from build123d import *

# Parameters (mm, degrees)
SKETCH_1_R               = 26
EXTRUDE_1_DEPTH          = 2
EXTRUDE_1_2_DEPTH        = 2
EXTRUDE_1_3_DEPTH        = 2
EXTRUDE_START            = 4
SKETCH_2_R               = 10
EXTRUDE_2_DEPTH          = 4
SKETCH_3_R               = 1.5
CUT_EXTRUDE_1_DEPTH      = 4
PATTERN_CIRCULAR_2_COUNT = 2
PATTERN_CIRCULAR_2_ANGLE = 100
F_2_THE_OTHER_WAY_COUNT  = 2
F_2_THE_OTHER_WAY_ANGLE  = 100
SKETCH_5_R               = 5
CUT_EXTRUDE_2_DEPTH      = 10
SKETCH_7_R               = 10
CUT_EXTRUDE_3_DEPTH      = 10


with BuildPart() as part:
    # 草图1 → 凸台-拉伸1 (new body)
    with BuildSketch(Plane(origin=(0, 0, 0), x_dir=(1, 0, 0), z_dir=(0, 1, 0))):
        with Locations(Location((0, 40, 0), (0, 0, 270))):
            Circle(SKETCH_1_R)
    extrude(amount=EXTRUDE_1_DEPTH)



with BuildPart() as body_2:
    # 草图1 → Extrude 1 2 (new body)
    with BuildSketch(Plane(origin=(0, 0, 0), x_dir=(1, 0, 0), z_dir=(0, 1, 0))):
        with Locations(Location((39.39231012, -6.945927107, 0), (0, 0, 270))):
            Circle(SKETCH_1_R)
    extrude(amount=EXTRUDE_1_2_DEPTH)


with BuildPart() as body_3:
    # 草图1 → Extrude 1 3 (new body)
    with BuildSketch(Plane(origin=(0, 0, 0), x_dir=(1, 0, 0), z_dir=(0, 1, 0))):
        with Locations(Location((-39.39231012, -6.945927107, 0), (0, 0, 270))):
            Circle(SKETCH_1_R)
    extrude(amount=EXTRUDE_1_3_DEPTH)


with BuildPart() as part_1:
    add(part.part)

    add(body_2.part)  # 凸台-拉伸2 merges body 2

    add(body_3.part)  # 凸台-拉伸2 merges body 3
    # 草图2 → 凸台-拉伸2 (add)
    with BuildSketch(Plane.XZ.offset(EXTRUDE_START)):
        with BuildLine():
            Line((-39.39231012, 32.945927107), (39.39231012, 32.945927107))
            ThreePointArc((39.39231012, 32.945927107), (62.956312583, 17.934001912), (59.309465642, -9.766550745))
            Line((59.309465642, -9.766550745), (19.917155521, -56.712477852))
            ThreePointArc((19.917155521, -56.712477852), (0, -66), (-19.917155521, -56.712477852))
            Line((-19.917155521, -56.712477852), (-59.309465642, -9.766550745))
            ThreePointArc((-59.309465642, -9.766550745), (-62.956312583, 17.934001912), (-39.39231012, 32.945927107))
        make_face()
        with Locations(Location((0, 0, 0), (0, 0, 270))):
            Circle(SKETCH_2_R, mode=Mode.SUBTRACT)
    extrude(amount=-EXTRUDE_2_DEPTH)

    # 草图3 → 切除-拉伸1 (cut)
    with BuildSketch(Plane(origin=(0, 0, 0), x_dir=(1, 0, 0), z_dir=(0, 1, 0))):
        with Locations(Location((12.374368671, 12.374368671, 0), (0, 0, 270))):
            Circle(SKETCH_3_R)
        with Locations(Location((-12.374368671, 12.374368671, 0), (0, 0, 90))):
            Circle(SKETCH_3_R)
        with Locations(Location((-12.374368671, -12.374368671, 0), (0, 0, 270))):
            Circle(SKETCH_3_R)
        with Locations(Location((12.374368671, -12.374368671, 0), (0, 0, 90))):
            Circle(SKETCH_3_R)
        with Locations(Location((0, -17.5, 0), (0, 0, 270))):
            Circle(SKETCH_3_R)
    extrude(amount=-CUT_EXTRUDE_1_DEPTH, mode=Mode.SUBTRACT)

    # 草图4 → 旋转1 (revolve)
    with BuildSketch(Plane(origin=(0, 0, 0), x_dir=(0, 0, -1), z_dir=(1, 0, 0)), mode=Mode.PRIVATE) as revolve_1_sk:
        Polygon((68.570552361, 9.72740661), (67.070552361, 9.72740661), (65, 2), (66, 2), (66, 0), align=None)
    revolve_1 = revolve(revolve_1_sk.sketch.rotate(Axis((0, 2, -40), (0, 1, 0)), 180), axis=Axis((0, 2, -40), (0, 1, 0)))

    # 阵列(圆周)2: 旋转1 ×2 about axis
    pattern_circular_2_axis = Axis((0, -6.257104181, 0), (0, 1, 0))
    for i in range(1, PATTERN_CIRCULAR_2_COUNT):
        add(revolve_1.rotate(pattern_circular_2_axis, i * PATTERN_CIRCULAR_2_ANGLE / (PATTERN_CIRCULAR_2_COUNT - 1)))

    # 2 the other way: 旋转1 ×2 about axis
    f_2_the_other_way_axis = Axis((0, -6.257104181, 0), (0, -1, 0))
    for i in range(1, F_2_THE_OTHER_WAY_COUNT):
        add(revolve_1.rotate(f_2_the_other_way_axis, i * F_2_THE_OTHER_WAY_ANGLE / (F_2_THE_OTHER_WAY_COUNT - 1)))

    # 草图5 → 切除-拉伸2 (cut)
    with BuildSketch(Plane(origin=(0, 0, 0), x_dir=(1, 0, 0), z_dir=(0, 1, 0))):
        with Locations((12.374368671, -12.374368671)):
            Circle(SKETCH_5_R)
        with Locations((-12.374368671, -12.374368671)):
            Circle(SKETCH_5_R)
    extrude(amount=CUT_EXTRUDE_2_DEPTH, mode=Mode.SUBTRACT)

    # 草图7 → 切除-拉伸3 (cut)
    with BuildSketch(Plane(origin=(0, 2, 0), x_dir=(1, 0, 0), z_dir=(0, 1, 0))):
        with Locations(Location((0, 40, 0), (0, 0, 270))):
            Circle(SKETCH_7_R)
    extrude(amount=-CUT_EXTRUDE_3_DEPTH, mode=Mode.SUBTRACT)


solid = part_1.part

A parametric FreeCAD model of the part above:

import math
import FreeCAD as App
import Part
import Sketcher
from FreeCAD import Vector
Q = App.Units.Quantity


def add_polygon(sketch, points):
    """Adds a closed chain of lines whose ends are joined by coincident constraints."""
    first, n = sketch.GeometryCount, len(points)
    for a, b in zip(points, points[1:] + points[:1]):
        sketch.addGeometry(Part.LineSegment(App.Vector(*a, 0), App.Vector(*b, 0)), False)
    for i in range(n):
        sketch.addConstraint(Sketcher.Constraint("Coincident", first + i, 2, first + (i + 1) % n, 1))

doc = App.newDocument("Part")
body = doc.addObject("PartDesign::Body", "Body")

sketch1 = body.newObject("Sketcher::SketchObject", "Sketch")
sketch1.AttachmentSupport = (doc.getObject("XZ_Plane"), [""])
sketch1.MapMode = "FlatFace"
sketch1.addGeometry(Part.Circle(Vector(0, -40, 0), Vector(0, 0, 1), 26), False)
sketch1.addConstraint([
    Sketcher.Constraint("PointOnObject", 0, 3, -2),
    Sketcher.Constraint("Diameter", 0, 52.0),
    Sketcher.Constraint("DistanceY", 0, 3, -1, 1, 40.0),
])
pad1 = body.newObject("PartDesign::Pad", "Pad")
pad1.Profile = sketch1
pad1.Length = 2
pad1.Reversed = True
body2 = doc.addObject("PartDesign::Body", "Body001")

sketch2 = body2.newObject("Sketcher::SketchObject", "Sketch001")
sketch2.AttachmentSupport = (doc.getObject("XZ_Plane001"), [""])
sketch2.MapMode = "FlatFace"
sketch2.addGeometry(Part.Circle(Vector(39, 7, 0), Vector(0, 0, 1), 26), False)
sketch2.addConstraint([
    Sketcher.Constraint("Diameter", 0, 52.0),
    Sketcher.Constraint("DistanceX", -1, 1, 0, 3, 39.39231),
    Sketcher.Constraint("DistanceY", -1, 1, 0, 3, 6.945927),
])
pad2 = body2.newObject("PartDesign::Pad", "Pad001")
pad2.Profile = sketch2
pad2.Length = 2
pad2.Reversed = True
body3 = doc.addObject("PartDesign::Body", "Body002")

sketch3 = body3.newObject("Sketcher::SketchObject", "Sketch002")
sketch3.AttachmentSupport = (doc.getObject("XZ_Plane002"), [""])
sketch3.MapMode = "FlatFace"
sketch3.addGeometry(Part.Circle(Vector(-39, 7, 0), Vector(0, 0, 1), 26), False)
sketch3.addConstraint([
    Sketcher.Constraint("Diameter", 0, 52.0),
    Sketcher.Constraint("DistanceX", 0, 3, -1, 1, 39.39231),
    Sketcher.Constraint("DistanceY", -1, 1, 0, 3, 6.945927),
])
pad3 = body3.newObject("PartDesign::Pad", "Pad002")
pad3.Profile = sketch3
pad3.Length = 2
pad3.Reversed = True
body.AllowCompound = True
doc.recompute()

boolean = body.newObject("PartDesign::Boolean", "Boolean")
boolean.Type = "Fuse"
boolean.addObjects([body2])
doc.recompute()

boolean2 = body.newObject("PartDesign::Boolean", "Boolean001")
boolean2.Type = "Fuse"
boolean2.addObjects([body3])

sketch4 = body.newObject("Sketcher::SketchObject", "Sketch003")
sketch4.AttachmentSupport = (doc.getObject("XZ_Plane"), [""])
sketch4.MapMode = "FlatFace"
sketch4.AttachmentOffset = App.Placement(Vector(0, 0, 4), App.Rotation())
sketch4.addGeometry([
    Part.LineSegment(Vector(39, 33, 0), Vector(-39, 33, 0)),
    Part.ArcOfCircle(Part.Circle(Vector(-39, 7, 0), Vector(0, 0, 1), 26), math.radians(90), math.radians(220)),
    Part.LineSegment(Vector(-59, -10, 0), Vector(-20, -57, 0)),
    Part.ArcOfCircle(Part.Circle(Vector(0, -40, 0), Vector(0, 0, 1), 26), math.radians(-140), math.radians(-40)),
    Part.LineSegment(Vector(20, -57, 0), Vector(59, -10, 0)),
    Part.ArcOfCircle(Part.Circle(Vector(39, 7, 0), Vector(0, 0, 1), 26), math.radians(-40), math.radians(90)),
    Part.Circle(Vector(0, 0, 0), Vector(0, 0, 1), 10),
], False)
sketch4.addConstraint([
    Sketcher.Constraint("Tangent", 0, 2, 1, 1),
    Sketcher.Constraint("Tangent", 1, 2, 2, 1),
    Sketcher.Constraint("Tangent", 2, 2, 3, 1),
    Sketcher.Constraint("Tangent", 3, 2, 4, 1),
    Sketcher.Constraint("Tangent", 4, 2, 5, 1),
    Sketcher.Constraint("Tangent", 5, 2, 0, 1),
    Sketcher.Constraint("Horizontal", 0),
    Sketcher.Constraint("Coincident", 6, 3, -1, 1),
    Sketcher.Constraint("Equal", 1, 3),
    Sketcher.Constraint("Equal", 3, 5),
    Sketcher.Constraint("Symmetric", 2, 2, 3, 2, -2),
    Sketcher.Constraint("Diameter", 6, 20.0),
    Sketcher.Constraint("Radius", 1, 26.0),
    Sketcher.Constraint("Angle", 2, Q("-50 deg")),
    Sketcher.Constraint("DistanceY", 3, 3, -1, 1, 40.0),
    Sketcher.Constraint("DistanceX", 0, 2, 0, 1, 78.78462),
])
pad4 = body.newObject("PartDesign::Pad", "Pad003")
pad4.Profile = sketch4
pad4.Length = 4
pad4.Reversed = True

sketch5 = body.newObject("Sketcher::SketchObject", "Sketch004")
sketch5.AttachmentSupport = (doc.getObject("XZ_Plane"), [""])
sketch5.MapMode = "FlatFace"
sketch5.addGeometry([
    Part.Circle(Vector(12.4, -12.4, 0), Vector(0, 0, 1), 1.5),
    Part.Circle(Vector(-12.4, -12.4, 0), Vector(0, 0, 1), 1.5),
    Part.Circle(Vector(-12.4, 12.4, 0), Vector(0, 0, 1), 1.5),
    Part.Circle(Vector(12.4, 12.4, 0), Vector(0, 0, 1), 1.5),
    Part.Circle(Vector(0, 17.5, 0), Vector(0, 0, 1), 1.5),
], False)
sketch5.addConstraint([
    Sketcher.Constraint("Equal", 0, 1),
    Sketcher.Constraint("Equal", 1, 2),
    Sketcher.Constraint("Equal", 2, 3),
    Sketcher.Constraint("Equal", 3, 4),
    Sketcher.Constraint("Symmetric", 0, 3, 2, 3, -1, 1),
    Sketcher.Constraint("Symmetric", 1, 3, 3, 3, -1, 1),
    Sketcher.Constraint("Symmetric", 0, 3, 1, 3, -2),
    Sketcher.Constraint("PointOnObject", 4, 3, -2),
    Sketcher.Constraint("Diameter", 0, 3.0),
    Sketcher.Constraint("DistanceY", -1, 1, 4, 3, 17.5),
    Sketcher.Constraint("DistanceX", -1, 1, 0, 3, 12.374369),
    Sketcher.Constraint("DistanceY", 0, 3, -1, 1, 12.374369),
])
pocket1 = body.newObject("PartDesign::Pocket", "Pocket")
pocket1.Profile = sketch5
pocket1.Length = 4
pocket1.Reversed = True

sketch6 = body.newObject("Sketcher::SketchObject", "Sketch005")
sketch6.AttachmentSupport = (doc.getObject("YZ_Plane"), [""])
sketch6.MapMode = "FlatFace"
add_polygon(sketch6, [(9.7, -68.6), (9.7, -67.1), (2, -65), (2, -66), (0, -66)])
sketch6.addGeometry(Part.LineSegment(Vector(0, -40, 0), Vector(9.7, -40, 0)), True)
sketch6.addConstraint([
    Sketcher.Constraint("Vertical", 0),
    Sketcher.Constraint("Vertical", 2),
    Sketcher.Constraint("Horizontal", 3),
    Sketcher.Constraint("Horizontal", 5),
    Sketcher.Constraint("PointOnObject", 3, 2, -2),
    Sketcher.Constraint("PointOnObject", 5, 1, -2),
    Sketcher.Constraint("Vertical", 4, 2, 5, 2),
    Sketcher.Constraint("DistanceX", 3, 2, 3, 1, 2.0),
    Sketcher.Constraint("DistanceY", 2, 2, 2, 1, 1.0),
    Sketcher.Constraint("Angle", 1, Q("165 deg")),
    Sketcher.Constraint("Distance", 1, 8.0),
    Sketcher.Constraint("DistanceY", 0, 1, 0, 2, 1.5),
    Sketcher.Constraint("DistanceY", 1, 2, -1, 1, 65.0),
    Sketcher.Constraint("DistanceY", 5, 1, -1, 1, 40.0),
])
revolution = body.newObject("PartDesign::Revolution", "Revolution")
revolution.Profile = sketch6
revolution.ReferenceAxis = (sketch6, ["Axis0"])
revolution.Angle = 360
doc.recompute()

polarpattern = body.newObject("PartDesign::PolarPattern", "PolarPattern")
polarpattern.Originals = [revolution]
polarpattern.Axis = (doc.getObject("Y_Axis"), [""])
polarpattern.Angle = 100
polarpattern.Occurrences = 2
body.Tip = polarpattern
doc.recompute()

polarpattern2 = body.newObject("PartDesign::PolarPattern", "PolarPattern001")
polarpattern2.Originals = [revolution]
polarpattern2.Axis = (doc.getObject("Y_Axis"), [""])
polarpattern2.Angle = 100
polarpattern2.Occurrences = 2
polarpattern2.Reversed = True
body.Tip = polarpattern2

sketch7 = body.newObject("Sketcher::SketchObject", "Sketch006")
sketch7.AttachmentSupport = (doc.getObject("XZ_Plane"), [""])
sketch7.MapMode = "FlatFace"
sketch7.addGeometry([
    Part.Circle(Vector(12, 12, 0), Vector(0, 0, 1), 5),
    Part.Circle(Vector(-12, 12, 0), Vector(0, 0, 1), 5),
], False)
sketch7.addConstraint([
    Sketcher.Constraint("Equal", 0, 1),
    Sketcher.Constraint("Symmetric", 0, 3, 1, 3, -2),
    Sketcher.Constraint("Diameter", 0, 10.0),
    Sketcher.Constraint("DistanceX", -1, 1, 0, 3, 12.374369),
    Sketcher.Constraint("DistanceY", -1, 1, 0, 3, 12.374369),
])
pocket2 = body.newObject("PartDesign::Pocket", "Pocket001")
pocket2.Profile = sketch7
pocket2.Length = 10

sketch8 = body.newObject("Sketcher::SketchObject", "Sketch007")
sketch8.AttachmentSupport = (doc.getObject("XZ_Plane"), [""])
sketch8.MapMode = "FlatFace"
sketch8.AttachmentOffset = App.Placement(Vector(0, 0, -2), App.Rotation())
sketch8.addGeometry(Part.Circle(Vector(0, -40, 0), Vector(0, 0, 1), 10), False)
sketch8.addConstraint([
    Sketcher.Constraint("PointOnObject", 0, 3, -2),
    Sketcher.Constraint("Diameter", 0, 20.0),
    Sketcher.Constraint("DistanceY", 0, 3, -1, 1, 40.0),
])
pocket3 = body.newObject("PartDesign::Pocket", "Pocket002")
pocket3.Profile = sketch8
pocket3.Length = 10
pocket3.Reversed = True

doc.recompute()
